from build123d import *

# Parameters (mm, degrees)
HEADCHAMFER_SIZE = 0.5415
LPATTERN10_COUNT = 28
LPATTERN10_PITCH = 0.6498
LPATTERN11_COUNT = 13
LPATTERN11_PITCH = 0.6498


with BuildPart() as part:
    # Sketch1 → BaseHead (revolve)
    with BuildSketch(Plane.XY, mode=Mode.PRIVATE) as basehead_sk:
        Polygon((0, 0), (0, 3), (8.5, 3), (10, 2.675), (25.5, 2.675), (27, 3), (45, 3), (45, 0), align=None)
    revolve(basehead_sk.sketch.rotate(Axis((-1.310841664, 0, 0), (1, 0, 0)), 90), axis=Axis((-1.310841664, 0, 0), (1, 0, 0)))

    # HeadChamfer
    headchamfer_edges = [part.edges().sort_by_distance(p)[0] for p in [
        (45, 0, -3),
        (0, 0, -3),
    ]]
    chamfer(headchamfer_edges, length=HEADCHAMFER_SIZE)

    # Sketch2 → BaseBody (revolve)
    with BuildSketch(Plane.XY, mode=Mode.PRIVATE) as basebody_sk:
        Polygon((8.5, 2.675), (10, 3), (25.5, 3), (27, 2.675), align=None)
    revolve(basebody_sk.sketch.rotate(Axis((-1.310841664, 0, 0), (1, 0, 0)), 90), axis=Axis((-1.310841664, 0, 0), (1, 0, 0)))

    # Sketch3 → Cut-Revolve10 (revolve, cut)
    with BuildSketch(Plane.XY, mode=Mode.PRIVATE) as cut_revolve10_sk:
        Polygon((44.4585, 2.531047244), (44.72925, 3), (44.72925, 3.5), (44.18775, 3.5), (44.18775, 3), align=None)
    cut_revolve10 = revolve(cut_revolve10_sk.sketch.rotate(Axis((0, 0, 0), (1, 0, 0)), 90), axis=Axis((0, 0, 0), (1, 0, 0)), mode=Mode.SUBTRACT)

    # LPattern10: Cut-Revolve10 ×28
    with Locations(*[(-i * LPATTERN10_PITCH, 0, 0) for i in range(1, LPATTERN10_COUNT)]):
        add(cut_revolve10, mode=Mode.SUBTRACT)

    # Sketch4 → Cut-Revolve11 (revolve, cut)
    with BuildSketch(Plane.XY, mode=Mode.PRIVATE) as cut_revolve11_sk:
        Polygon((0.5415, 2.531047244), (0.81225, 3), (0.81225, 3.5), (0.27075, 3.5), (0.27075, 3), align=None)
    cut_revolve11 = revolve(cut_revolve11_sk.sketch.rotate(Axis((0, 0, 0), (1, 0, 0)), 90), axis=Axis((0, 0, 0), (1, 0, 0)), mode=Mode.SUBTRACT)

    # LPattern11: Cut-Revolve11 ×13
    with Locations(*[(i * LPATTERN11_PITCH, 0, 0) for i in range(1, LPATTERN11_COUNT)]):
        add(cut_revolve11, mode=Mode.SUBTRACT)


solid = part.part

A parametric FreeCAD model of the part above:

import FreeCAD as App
import Part
import Sketcher
from FreeCAD import Vector
Q = App.Units.Quantity


def edges_at(feature, points):
    """Names of the edges that pass closest to the given points."""
    edges = feature.Shape.Edges
    near = lambda p: min(range(len(edges)), key=lambda i: edges[i].distToShape(Part.Vertex(*p))[0])
    return sorted({f"Edge{near(p) + 1}" for p in points})

doc = App.newDocument("Part")
body = doc.addObject("PartDesign::Body", "Body")

sketch1 = doc.addObject("Sketcher::SketchObject", "Sketch")
body.addObject(sketch1)
sketch1.AttachmentSupport = (doc.XY_Plane, [""])
sketch1.MapMode = "FlatFace"
sketch1.addGeometry(Part.LineSegment(Vector(0, 3, 0), Vector(0, 0, 0)), False)
sketch1.addGeometry(Part.LineSegment(Vector(0, 0, 0), Vector(45, 0, 0)), False)
sketch1.addGeometry(Part.LineSegment(Vector(45, 0, 0), Vector(45, 3, 0)), False)
sketch1.addGeometry(Part.LineSegment(Vector(45, 3, 0), Vector(27, 3, 0)), False)
sketch1.addGeometry(Part.LineSegment(Vector(27, 3, 0), Vector(25.5, 2.7, 0)), False)
sketch1.addGeometry(Part.LineSegment(Vector(25.5, 2.7, 0), Vector(10, 2.7, 0)), False)
sketch1.addGeometry(Part.LineSegment(Vector(10, 2.7, 0), Vector(8.5, 3, 0)), False)
sketch1.addGeometry(Part.LineSegment(Vector(8.5, 3, 0), Vector(0, 3, 0)), False)
sketch1.addConstraint(Sketcher.Constraint("Coincident", 0, 2, 1, 1))
sketch1.addConstraint(Sketcher.Constraint("Coincident", 1, 2, 2, 1))
sketch1.addConstraint(Sketcher.Constraint("Coincident", 2, 2, 3, 1))
sketch1.addConstraint(Sketcher.Constraint("Coincident", 3, 2, 4, 1))
sketch1.addConstraint(Sketcher.Constraint("Coincident", 4, 2, 5, 1))
sketch1.addConstraint(Sketcher.Constraint("Coincident", 5, 2, 6, 1))
sketch1.addConstraint(Sketcher.Constraint("Coincident", 6, 2, 7, 1))
sketch1.addConstraint(Sketcher.Constraint("Coincident", 7, 2, 0, 1))
sketch1.addConstraint(Sketcher.Constraint("Vertical", 0))
sketch1.addConstraint(Sketcher.Constraint("Horizontal", 1))
sketch1.addConstraint(Sketcher.Constraint("Vertical", 2))
sketch1.addConstraint(Sketcher.Constraint("Horizontal", 3))
sketch1.addConstraint(Sketcher.Constraint("Horizontal", 5))
sketch1.addConstraint(Sketcher.Constraint("Horizontal", 7))
sketch1.addConstraint(Sketcher.Constraint("Coincident", 0, 2, -1, 1))
sketch1.addConstraint(Sketcher.Constraint("Horizontal", 3, 2, 6, 2))
sketch1.addConstraint(Sketcher.Constraint("Equal", 4, 6))
sketch1.addConstraint(Sketcher.Constraint("DistanceX", 1, 1, 1, 2, Q("45 mm")))
sketch1.addConstraint(Sketcher.Constraint("DistanceX", 3, 2, 3, 1, Q("18 mm")))
sketch1.addConstraint(Sketcher.Constraint("DistanceY", 0, 2, 0, 1, Q("3 mm")))
sketch1.addConstraint(Sketcher.Constraint("DistanceX", 5, 2, 5, 1, Q("15.5 mm")))
sketch1.addConstraint(Sketcher.Constraint("DistanceX", 7, 2, 7, 1, Q("8.5 mm")))
sketch1.addConstraint(Sketcher.Constraint("DistanceY", -1, 1, 4, 2, Q("2.675 mm")))
revolution = doc.addObject("PartDesign::Revolution", "Revolution")
body.addObject(revolution)
revolution.Profile = sketch1
revolution.ReferenceAxis = (sketch1, ["H_Axis"])
revolution.Angle = 360
doc.recompute()

chamfer = doc.addObject("PartDesign::Chamfer", "Chamfer")
body.addObject(chamfer)
chamfer.Base = (revolution, edges_at(revolution, [(45, 0, -3), (0, 0, -3)]))
chamfer.Size = 0.5415

sketch2 = doc.addObject("Sketcher::SketchObject", "Sketch001")
body.addObject(sketch2)
sketch2.AttachmentSupport = (doc.XY_Plane, [""])
sketch2.MapMode = "FlatFace"
sketch2.addGeometry(Part.LineSegment(Vector(10, 3, 0), Vector(8.5, 2.7, 0)), False)
sketch2.addGeometry(Part.LineSegment(Vector(8.5, 2.7, 0), Vector(27, 2.7, 0)), False)
sketch2.addGeometry(Part.LineSegment(Vector(27, 2.7, 0), Vector(25.5, 3, 0)), False)
sketch2.addGeometry(Part.LineSegment(Vector(25.5, 3, 0), Vector(10, 3, 0)), False)
sketch2.addConstraint(Sketcher.Constraint("Coincident", 0, 2, 1, 1))
sketch2.addConstraint(Sketcher.Constraint("Coincident", 1, 2, 2, 1))
sketch2.addConstraint(Sketcher.Constraint("Coincident", 2, 2, 3, 1))
sketch2.addConstraint(Sketcher.Constraint("Coincident", 3, 2, 0, 1))
sketch2.addConstraint(Sketcher.Constraint("Horizontal", 1))
sketch2.addConstraint(Sketcher.Constraint("Horizontal", 3))
sketch2.addConstraint(Sketcher.Constraint("Equal", 0, 2))
sketch2.addConstraint(Sketcher.Constraint("DistanceX", 1, 1, 1, 2, Q("18.5 mm")))
sketch2.addConstraint(Sketcher.Constraint("DistanceX", 3, 2, 3, 1, Q("15.5 mm")))
sketch2.addConstraint(Sketcher.Constraint("DistanceX", -1, 1, 1, 2, Q("27 mm")))
sketch2.addConstraint(Sketcher.Constraint("DistanceY", -1, 1, 2, 2, Q("3 mm")))
sketch2.addConstraint(Sketcher.Constraint("DistanceY", -1, 1, 0, 2, Q("2.675 mm")))
revolution2 = doc.addObject("PartDesign::Revolution", "Revolution001")
body.addObject(revolution2)
revolution2.Profile = sketch2
revolution2.ReferenceAxis = (sketch2, ["H_Axis"])
revolution2.Angle = 360

sketch3 = doc.addObject("Sketcher::SketchObject", "Sketch002")
body.addObject(sketch3)
sketch3.AttachmentSupport = (doc.XY_Plane, [""])
sketch3.MapMode = "FlatFace"
sketch3.addGeometry(Part.LineSegment(Vector(44.5, 2.5, 0), Vector(44.7, 3, 0)), False)
sketch3.addGeometry(Part.LineSegment(Vector(44.7, 3, 0), Vector(44.7, 3.5, 0)), False)
sketch3.addGeometry(Part.LineSegment(Vector(44.7, 3.5, 0), Vector(44.2, 3.5, 0)), False)
sketch3.addGeometry(Part.LineSegment(Vector(44.2, 3.5, 0), Vector(44.2, 3, 0)), False)
sketch3.addGeometry(Part.LineSegment(Vector(44.2, 3, 0), Vector(44.5, 2.5, 0)), False)
sketch3.addConstraint(Sketcher.Constraint("Coincident", 0, 2, 1, 1))
sketch3.addConstraint(Sketcher.Constraint("Coincident", 1, 2, 2, 1))
sketch3.addConstraint(Sketcher.Constraint("Coincident", 2, 2, 3, 1))
sketch3.addConstraint(Sketcher.Constraint("Coincident", 3, 2, 4, 1))
sketch3.addConstraint(Sketcher.Constraint("Coincident", 4, 2, 0, 1))
sketch3.addConstraint(Sketcher.Constraint("Vertical", 1))
sketch3.addConstraint(Sketcher.Constraint("Horizontal", 2))
sketch3.addConstraint(Sketcher.Constraint("Vertical", 3))
sketch3.addConstraint(Sketcher.Constraint("Horizontal", 0, 2, 3, 2))
sketch3.addConstraint(Sketcher.Constraint("Equal", 0, 4))
sketch3.addConstraint(Sketcher.Constraint("Angle", 0, Q("60 deg")))
sketch3.addConstraint(Sketcher.Constraint("DistanceY", 1, 1, 1, 2, Q("0.5 mm")))
sketch3.addConstraint(Sketcher.Constraint("DistanceY", -1, 1, 0, 2, Q("3 mm")))
sketch3.addConstraint(Sketcher.Constraint("DistanceX", 2, 2, 2, 1, Q("0.5415 mm")))
sketch3.addConstraint(Sketcher.Constraint("DistanceX", -1, 1, 4, 2, Q("44.4585 mm")))
groove = doc.addObject("PartDesign::Groove", "Groove")
body.addObject(groove)
groove.Profile = sketch3
groove.ReferenceAxis = (sketch3, ["H_Axis"])
groove.Angle = 360
doc.recompute()

linearpattern = doc.addObject("PartDesign::LinearPattern", "LinearPattern")
body.addObject(linearpattern)
linearpattern.Originals = [groove]
linearpattern.Direction = (doc.X_Axis, [""])
linearpattern.Mode = "offset"
linearpattern.Offset = 0.6498
linearpattern.Occurrences = 28
linearpattern.Reversed = True
body.Tip = linearpattern

sketch4 = doc.addObject("Sketcher::SketchObject", "Sketch003")
body.addObject(sketch4)
sketch4.AttachmentSupport = (doc.XY_Plane, [""])
sketch4.MapMode = "FlatFace"
sketch4.addGeometry(Part.LineSegment(Vector(0.5, 2.5, 0), Vector(0.8, 3, 0)), False)
sketch4.addGeometry(Part.LineSegment(Vector(0.8, 3, 0), Vector(0.8, 3.5, 0)), False)
sketch4.addGeometry(Part.LineSegment(Vector(0.8, 3.5, 0), Vector(0.3, 3.5, 0)), False)
sketch4.addGeometry(Part.LineSegment(Vector(0.3, 3.5, 0), Vector(0.3, 3, 0)), False)
sketch4.addGeometry(Part.LineSegment(Vector(0.3, 3, 0), Vector(0.5, 2.5, 0)), False)
sketch4.addConstraint(Sketcher.Constraint("Coincident", 0, 2, 1, 1))
sketch4.addConstraint(Sketcher.Constraint("Coincident", 1, 2, 2, 1))
sketch4.addConstraint(Sketcher.Constraint("Coincident", 2, 2, 3, 1))
sketch4.addConstraint(Sketcher.Constraint("Coincident", 3, 2, 4, 1))
sketch4.addConstraint(Sketcher.Constraint("Coincident", 4, 2, 0, 1))
sketch4.addConstraint(Sketcher.Constraint("Vertical", 1))
sketch4.addConstraint(Sketcher.Constraint("Horizontal", 2))
sketch4.addConstraint(Sketcher.Constraint("Vertical", 3))
sketch4.addConstraint(Sketcher.Constraint("Horizontal", 0, 2, 3, 2))
sketch4.addConstraint(Sketcher.Constraint("Equal", 0, 4))
sketch4.addConstraint(Sketcher.Constraint("Angle", 0, Q("60 deg")))
sketch4.addConstraint(Sketcher.Constraint("DistanceY", 1, 1, 1, 2, Q("0.5 mm")))
sketch4.addConstraint(Sketcher.Constraint("DistanceY", -1, 1, 0, 2, Q("3 mm")))
sketch4.addConstraint(Sketcher.Constraint("DistanceX", 2, 2, 2, 1, Q("0.5415 mm")))
sketch4.addConstraint(Sketcher.Constraint("DistanceX", -1, 1, 4, 2, Q("0.5415 mm")))
groove2 = doc.addObject("PartDesign::Groove", "Groove001")
body.addObject(groove2)
groove2.Profile = sketch4
groove2.ReferenceAxis = (sketch4, ["H_Axis"])
groove2.Angle = 360
doc.recompute()

linearpattern2 = doc.addObject("PartDesign::LinearPattern", "LinearPattern001")
body.addObject(linearpattern2)
linearpattern2.Originals = [groove2]
linearpattern2.Direction = (doc.X_Axis, [""])
linearpattern2.Mode = "offset"
linearpattern2.Offset = 0.6498
linearpattern2.Occurrences = 13
body.Tip = linearpattern2

doc.recompute()
